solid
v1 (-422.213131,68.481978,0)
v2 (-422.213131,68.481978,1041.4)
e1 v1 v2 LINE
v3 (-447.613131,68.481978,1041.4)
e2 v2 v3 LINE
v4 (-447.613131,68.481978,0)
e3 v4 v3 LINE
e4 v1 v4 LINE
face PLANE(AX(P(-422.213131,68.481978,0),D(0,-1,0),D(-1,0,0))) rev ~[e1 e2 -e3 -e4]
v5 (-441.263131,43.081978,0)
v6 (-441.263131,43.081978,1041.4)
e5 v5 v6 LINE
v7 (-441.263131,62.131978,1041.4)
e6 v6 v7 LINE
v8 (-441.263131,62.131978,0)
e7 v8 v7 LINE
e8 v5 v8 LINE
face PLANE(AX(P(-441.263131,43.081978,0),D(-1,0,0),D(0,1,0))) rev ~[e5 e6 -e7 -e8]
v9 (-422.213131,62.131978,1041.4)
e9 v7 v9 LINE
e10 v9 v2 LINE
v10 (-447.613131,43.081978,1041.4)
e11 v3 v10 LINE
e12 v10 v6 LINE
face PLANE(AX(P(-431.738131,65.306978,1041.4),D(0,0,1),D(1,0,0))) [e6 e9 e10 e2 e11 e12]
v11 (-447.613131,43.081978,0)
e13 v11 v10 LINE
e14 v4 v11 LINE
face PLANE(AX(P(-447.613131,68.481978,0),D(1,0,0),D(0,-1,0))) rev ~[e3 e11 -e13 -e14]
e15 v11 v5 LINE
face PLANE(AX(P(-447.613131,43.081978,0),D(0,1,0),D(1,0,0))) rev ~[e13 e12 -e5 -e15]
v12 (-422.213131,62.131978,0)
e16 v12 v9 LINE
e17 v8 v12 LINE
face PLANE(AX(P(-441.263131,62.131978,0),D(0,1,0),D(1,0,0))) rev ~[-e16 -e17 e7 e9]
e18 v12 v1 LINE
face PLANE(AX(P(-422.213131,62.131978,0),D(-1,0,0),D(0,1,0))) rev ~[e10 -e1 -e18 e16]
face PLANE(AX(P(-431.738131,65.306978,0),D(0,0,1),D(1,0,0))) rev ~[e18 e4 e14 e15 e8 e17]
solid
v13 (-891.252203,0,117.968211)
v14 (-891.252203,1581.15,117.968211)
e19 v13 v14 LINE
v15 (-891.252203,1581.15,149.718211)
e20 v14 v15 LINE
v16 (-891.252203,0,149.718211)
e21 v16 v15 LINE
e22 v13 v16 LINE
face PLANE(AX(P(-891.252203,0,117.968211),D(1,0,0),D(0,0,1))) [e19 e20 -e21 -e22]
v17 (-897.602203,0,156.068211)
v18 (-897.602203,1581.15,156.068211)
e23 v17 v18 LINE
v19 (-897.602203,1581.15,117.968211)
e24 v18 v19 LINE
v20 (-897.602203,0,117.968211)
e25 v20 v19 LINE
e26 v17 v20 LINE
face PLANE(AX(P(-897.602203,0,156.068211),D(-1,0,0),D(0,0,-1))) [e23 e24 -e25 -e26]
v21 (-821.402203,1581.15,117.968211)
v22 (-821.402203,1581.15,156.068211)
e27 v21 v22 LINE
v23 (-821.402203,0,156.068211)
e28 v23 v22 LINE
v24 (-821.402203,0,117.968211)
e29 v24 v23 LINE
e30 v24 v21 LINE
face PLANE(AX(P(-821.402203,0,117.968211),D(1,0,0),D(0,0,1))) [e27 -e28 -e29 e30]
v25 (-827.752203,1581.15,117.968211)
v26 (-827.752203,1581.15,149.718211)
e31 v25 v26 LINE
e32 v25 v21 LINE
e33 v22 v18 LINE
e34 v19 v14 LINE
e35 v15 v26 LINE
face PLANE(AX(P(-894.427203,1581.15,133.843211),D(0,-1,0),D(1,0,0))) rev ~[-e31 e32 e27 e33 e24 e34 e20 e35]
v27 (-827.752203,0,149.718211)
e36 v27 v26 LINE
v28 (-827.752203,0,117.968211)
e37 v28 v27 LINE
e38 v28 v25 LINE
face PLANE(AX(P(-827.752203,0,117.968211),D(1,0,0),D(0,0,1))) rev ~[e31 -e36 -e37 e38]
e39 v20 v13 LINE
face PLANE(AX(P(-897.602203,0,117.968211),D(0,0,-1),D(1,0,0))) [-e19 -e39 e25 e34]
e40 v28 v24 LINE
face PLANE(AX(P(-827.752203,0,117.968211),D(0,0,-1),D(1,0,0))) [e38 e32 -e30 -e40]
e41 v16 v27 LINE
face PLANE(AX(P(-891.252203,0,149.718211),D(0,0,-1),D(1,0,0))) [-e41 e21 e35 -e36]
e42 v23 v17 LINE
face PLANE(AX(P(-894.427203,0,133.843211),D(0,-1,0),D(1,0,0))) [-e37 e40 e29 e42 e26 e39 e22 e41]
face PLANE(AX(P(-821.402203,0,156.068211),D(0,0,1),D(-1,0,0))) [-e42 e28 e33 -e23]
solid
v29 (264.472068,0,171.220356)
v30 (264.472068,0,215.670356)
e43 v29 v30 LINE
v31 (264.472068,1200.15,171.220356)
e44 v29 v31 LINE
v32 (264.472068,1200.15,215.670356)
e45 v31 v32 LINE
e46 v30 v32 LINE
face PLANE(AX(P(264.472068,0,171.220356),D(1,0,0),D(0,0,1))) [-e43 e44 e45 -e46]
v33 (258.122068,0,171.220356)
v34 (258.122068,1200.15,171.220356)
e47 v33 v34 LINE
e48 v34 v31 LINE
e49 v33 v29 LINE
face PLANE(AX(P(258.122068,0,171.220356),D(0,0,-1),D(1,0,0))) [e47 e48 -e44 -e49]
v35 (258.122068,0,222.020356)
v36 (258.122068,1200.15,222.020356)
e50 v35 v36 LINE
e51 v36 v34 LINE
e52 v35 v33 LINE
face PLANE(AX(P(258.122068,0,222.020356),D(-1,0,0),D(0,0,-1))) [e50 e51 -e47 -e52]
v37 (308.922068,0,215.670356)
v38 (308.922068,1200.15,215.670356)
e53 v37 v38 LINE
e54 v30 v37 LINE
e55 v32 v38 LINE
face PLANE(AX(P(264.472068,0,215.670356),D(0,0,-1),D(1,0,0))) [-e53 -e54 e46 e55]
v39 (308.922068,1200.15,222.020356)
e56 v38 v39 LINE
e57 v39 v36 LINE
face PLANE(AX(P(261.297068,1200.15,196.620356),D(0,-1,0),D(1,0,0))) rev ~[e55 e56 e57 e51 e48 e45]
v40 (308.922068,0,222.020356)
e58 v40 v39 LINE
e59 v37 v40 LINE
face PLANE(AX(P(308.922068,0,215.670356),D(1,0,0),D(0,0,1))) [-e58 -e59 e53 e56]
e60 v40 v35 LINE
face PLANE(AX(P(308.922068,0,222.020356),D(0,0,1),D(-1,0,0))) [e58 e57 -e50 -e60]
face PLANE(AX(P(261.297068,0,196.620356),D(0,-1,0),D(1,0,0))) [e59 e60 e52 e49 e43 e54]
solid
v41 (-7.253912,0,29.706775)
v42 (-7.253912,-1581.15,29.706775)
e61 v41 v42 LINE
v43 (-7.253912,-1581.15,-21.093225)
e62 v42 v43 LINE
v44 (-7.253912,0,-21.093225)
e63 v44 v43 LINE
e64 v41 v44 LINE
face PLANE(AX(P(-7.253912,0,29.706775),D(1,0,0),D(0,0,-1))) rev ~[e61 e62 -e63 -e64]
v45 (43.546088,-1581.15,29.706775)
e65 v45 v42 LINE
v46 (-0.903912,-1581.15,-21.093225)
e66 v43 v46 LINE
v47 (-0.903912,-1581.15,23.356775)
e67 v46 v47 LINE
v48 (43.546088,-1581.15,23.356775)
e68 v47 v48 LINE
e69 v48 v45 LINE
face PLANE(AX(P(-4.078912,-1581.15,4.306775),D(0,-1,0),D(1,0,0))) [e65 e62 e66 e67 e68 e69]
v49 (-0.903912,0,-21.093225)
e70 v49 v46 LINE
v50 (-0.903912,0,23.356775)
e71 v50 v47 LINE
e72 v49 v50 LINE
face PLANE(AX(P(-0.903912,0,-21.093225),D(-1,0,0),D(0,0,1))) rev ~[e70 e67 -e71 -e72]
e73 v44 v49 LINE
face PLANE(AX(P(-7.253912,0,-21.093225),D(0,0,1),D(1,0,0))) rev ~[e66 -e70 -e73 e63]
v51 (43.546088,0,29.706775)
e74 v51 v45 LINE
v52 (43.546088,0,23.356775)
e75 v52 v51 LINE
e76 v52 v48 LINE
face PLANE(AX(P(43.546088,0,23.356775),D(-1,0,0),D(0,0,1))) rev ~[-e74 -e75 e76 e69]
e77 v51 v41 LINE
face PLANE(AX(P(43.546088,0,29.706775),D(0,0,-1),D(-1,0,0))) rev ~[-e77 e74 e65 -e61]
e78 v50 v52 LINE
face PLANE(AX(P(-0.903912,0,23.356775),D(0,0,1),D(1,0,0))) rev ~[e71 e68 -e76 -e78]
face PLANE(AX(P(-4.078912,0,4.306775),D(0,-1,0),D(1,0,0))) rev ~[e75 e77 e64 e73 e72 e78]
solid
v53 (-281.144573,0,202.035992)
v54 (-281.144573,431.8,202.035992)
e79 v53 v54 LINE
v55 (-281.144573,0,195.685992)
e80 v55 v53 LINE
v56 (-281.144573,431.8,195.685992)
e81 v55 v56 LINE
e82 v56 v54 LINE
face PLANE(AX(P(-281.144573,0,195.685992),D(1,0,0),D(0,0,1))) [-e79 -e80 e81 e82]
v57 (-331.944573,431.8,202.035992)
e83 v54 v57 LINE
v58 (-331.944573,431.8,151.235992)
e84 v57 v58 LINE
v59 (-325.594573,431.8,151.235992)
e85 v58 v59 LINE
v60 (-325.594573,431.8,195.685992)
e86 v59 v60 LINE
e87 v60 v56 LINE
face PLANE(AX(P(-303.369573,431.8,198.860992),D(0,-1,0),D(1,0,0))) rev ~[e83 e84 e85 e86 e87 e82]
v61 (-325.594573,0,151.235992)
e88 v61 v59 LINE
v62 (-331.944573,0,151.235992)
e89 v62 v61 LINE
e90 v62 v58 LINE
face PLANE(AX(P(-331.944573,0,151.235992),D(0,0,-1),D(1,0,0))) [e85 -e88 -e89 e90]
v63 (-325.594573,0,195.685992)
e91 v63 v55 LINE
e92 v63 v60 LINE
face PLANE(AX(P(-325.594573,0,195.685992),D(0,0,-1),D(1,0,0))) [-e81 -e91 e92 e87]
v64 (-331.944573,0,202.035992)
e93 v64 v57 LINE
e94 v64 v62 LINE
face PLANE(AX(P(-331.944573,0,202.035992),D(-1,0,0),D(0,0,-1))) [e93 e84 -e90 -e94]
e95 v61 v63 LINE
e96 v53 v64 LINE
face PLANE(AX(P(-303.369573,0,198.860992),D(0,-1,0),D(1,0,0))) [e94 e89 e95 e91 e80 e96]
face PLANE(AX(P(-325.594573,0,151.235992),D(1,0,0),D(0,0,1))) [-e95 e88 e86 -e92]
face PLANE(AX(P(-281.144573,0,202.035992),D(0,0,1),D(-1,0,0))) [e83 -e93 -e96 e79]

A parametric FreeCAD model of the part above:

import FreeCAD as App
import Part
import Sketcher
Q = App.Units.Quantity

doc = App.newDocument("Part")
body = doc.addObject("PartDesign::Body", "Body")

# Sketch on XZ plane
sketch1 = body.newObject("Sketcher::SketchObject", "Sketch")
sketch1.AttachmentSupport = (doc.getObject("XZ_Plane"), [""])
sketch1.MapMode = "FlatFace"
sketch1.addGeometry(Part.LineSegment(App.Vector(-7.253912, 29.706775, 0), App.Vector(-7.253912, -21.093225, 0)), False)
sketch1.addGeometry(Part.LineSegment(App.Vector(-7.253912, -21.093225, 0), App.Vector(-0.903912, -21.093225, 0)), False)
sketch1.addGeometry(Part.LineSegment(App.Vector(-0.903912, -21.093225, 0), App.Vector(-0.903912, 23.356775, 0)), False)
sketch1.addGeometry(Part.LineSegment(App.Vector(-0.903912, 23.356775, 0), App.Vector(43.546088, 23.356775, 0)), False)
sketch1.addGeometry(Part.LineSegment(App.Vector(43.546088, 23.356775, 0), App.Vector(43.546088, 29.706775, 0)), False)
sketch1.addGeometry(Part.LineSegment(App.Vector(43.546088, 29.706775, 0), App.Vector(-7.253912, 29.706775, 0)), False)
sketch1.addConstraint(Sketcher.Constraint("Coincident", 0, 2, 1, 1))
sketch1.addConstraint(Sketcher.Constraint("Coincident", 1, 2, 2, 1))
sketch1.addConstraint(Sketcher.Constraint("Coincident", 2, 2, 3, 1))
sketch1.addConstraint(Sketcher.Constraint("Coincident", 3, 2, 4, 1))
sketch1.addConstraint(Sketcher.Constraint("Coincident", 4, 2, 5, 1))
sketch1.addConstraint(Sketcher.Constraint("Coincident", 5, 2, 0, 1))
sketch1.addConstraint(Sketcher.Constraint("Vertical", 0))
sketch1.addConstraint(Sketcher.Constraint("Horizontal", 1))
sketch1.addConstraint(Sketcher.Constraint("Vertical", 2))
sketch1.addConstraint(Sketcher.Constraint("Horizontal", 3))
sketch1.addConstraint(Sketcher.Constraint("Vertical", 4))
sketch1.addConstraint(Sketcher.Constraint("Horizontal", 5))
sketch1.addConstraint(Sketcher.Constraint("Equal", 5, 0))
sketch1.addConstraint(Sketcher.Constraint("Equal", 3, 2))
sketch1.addConstraint(Sketcher.Constraint("DistanceX", 5, 2, 5, 1, Q("2 in")))
sketch1.addConstraint(Sketcher.Constraint("DistanceX", 1, 1, 1, 2, Q("0.25 in")))
sketch1.addConstraint(Sketcher.Constraint("DistanceX", 0, 2, -1, 1, Q("7.253912 mm")))
sketch1.addConstraint(Sketcher.Constraint("DistanceY", 0, 2, -1, 1, Q("21.093225 mm")))
pad1 = body.newObject("PartDesign::Pad", "Pad")
pad1.Profile = sketch1
pad1.Length = Q("62.25 in")
body2 = doc.addObject("PartDesign::Body", "Body001")

# Sketch on XY plane
sketch2 = body2.newObject("Sketcher::SketchObject", "Sketch001")
sketch2.AttachmentSupport = (doc.getObject("XY_Plane001"), [""])
sketch2.MapMode = "FlatFace"
sketch2.addGeometry(Part.LineSegment(App.Vector(-441.263131, 62.131978, 0), App.Vector(-422.213131, 62.131978, 0)), False)
sketch2.addGeometry(Part.LineSegment(App.Vector(-422.213131, 62.131978, 0), App.Vector(-422.213131, 68.481978, 0)), False)
sketch2.addGeometry(Part.LineSegment(App.Vector(-422.213131, 68.481978, 0), App.Vector(-447.613131, 68.481978, 0)), False)
sketch2.addGeometry(Part.LineSegment(App.Vector(-447.613131, 68.481978, 0), App.Vector(-447.613131, 43.081978, 0)), False)
sketch2.addGeometry(Part.LineSegment(App.Vector(-447.613131, 43.081978, 0), App.Vector(-441.263131, 43.081978, 0)), False)
sketch2.addGeometry(Part.LineSegment(App.Vector(-441.263131, 43.081978, 0), App.Vector(-441.263131, 62.131978, 0)), False)
sketch2.addConstraint(Sketcher.Constraint("Coincident", 0, 2, 1, 1))
sketch2.addConstraint(Sketcher.Constraint("Coincident", 1, 2, 2, 1))
sketch2.addConstraint(Sketcher.Constraint("Coincident", 2, 2, 3, 1))
sketch2.addConstraint(Sketcher.Constraint("Coincident", 3, 2, 4, 1))
sketch2.addConstraint(Sketcher.Constraint("Coincident", 4, 2, 5, 1))
sketch2.addConstraint(Sketcher.Constraint("Coincident", 5, 2, 0, 1))
sketch2.addConstraint(Sketcher.Constraint("Horizontal", 0))
sketch2.addConstraint(Sketcher.Constraint("Vertical", 1))
sketch2.addConstraint(Sketcher.Constraint("Horizontal", 2))
sketch2.addConstraint(Sketcher.Constraint("Vertical", 3))
sketch2.addConstraint(Sketcher.Constraint("Horizontal", 4))
sketch2.addConstraint(Sketcher.Constraint("Vertical", 5))
sketch2.addConstraint(Sketcher.Constraint("Equal", 4, 1))
sketch2.addConstraint(Sketcher.Constraint("Equal", 2, 3))
sketch2.addConstraint(Sketcher.Constraint("DistanceX", 2, 2, 2, 1, Q("1 in")))
sketch2.addConstraint(Sketcher.Constraint("DistanceX", 0, 1, 0, 2, Q("0.75 in")))
sketch2.addConstraint(Sketcher.Constraint("DistanceX", 0, 2, -1, 1, Q("422.213131 mm")))
sketch2.addConstraint(Sketcher.Constraint("DistanceY", -1, 1, 1, 2, Q("68.481978 mm")))
pad2 = body2.newObject("PartDesign::Pad", "Pad001")
pad2.Profile = sketch2
pad2.Length = Q("41 in")
body3 = doc.addObject("PartDesign::Body", "Body002")

# Sketch on XZ plane
sketch3 = body3.newObject("Sketcher::SketchObject", "Sketch002")
sketch3.AttachmentSupport = (doc.getObject("XZ_Plane002"), [""])
sketch3.MapMode = "FlatFace"
sketch3.addGeometry(Part.LineSegment(App.Vector(-325.594573, 195.685992, 0), App.Vector(-281.144573, 195.685992, 0)), False)
sketch3.addGeometry(Part.LineSegment(App.Vector(-281.144573, 195.685992, 0), App.Vector(-281.144573, 202.035992, 0)), False)
sketch3.addGeometry(Part.LineSegment(App.Vector(-281.144573, 202.035992, 0), App.Vector(-331.944573, 202.035992, 0)), False)
sketch3.addGeometry(Part.LineSegment(App.Vector(-331.944573, 202.035992, 0), App.Vector(-331.944573, 151.235992, 0)), False)
sketch3.addGeometry(Part.LineSegment(App.Vector(-331.944573, 151.235992, 0), App.Vector(-325.594573, 151.235992, 0)), False)
sketch3.addGeometry(Part.LineSegment(App.Vector(-325.594573, 151.235992, 0), App.Vector(-325.594573, 195.685992, 0)), False)
sketch3.addConstraint(Sketcher.Constraint("Coincident", 0, 2, 1, 1))
sketch3.addConstraint(Sketcher.Constraint("Coincident", 1, 2, 2, 1))
sketch3.addConstraint(Sketcher.Constraint("Coincident", 2, 2, 3, 1))
sketch3.addConstraint(Sketcher.Constraint("Coincident", 3, 2, 4, 1))
sketch3.addConstraint(Sketcher.Constraint("Coincident", 4, 2, 5, 1))
sketch3.addConstraint(Sketcher.Constraint("Coincident", 5, 2, 0, 1))
sketch3.addConstraint(Sketcher.Constraint("Horizontal", 0))
sketch3.addConstraint(Sketcher.Constraint("Vertical", 1))
sketch3.addConstraint(Sketcher.Constraint("Horizontal", 2))
sketch3.addConstraint(Sketcher.Constraint("Vertical", 3))
sketch3.addConstraint(Sketcher.Constraint("Horizontal", 4))
sketch3.addConstraint(Sketcher.Constraint("Vertical", 5))
sketch3.addConstraint(Sketcher.Constraint("Equal", 4, 1))
sketch3.addConstraint(Sketcher.Constraint("Equal", 2, 3))
sketch3.addConstraint(Sketcher.Constraint("DistanceX", 2, 2, 2, 1, Q("2 in")))
sketch3.addConstraint(Sketcher.Constraint("DistanceX", 0, 1, 0, 2, Q("1.75 in")))
sketch3.addConstraint(Sketcher.Constraint("DistanceY", -1, 1, 0, 2, Q("195.685992 mm")))
sketch3.addConstraint(Sketcher.Constraint("DistanceX", 0, 2, -1, 1, Q("281.144573 mm")))
pad3 = body3.newObject("PartDesign::Pad", "Pad002")
pad3.Profile = sketch3
pad3.Length = Q("17 in")
pad3.Reversed = True
body4 = doc.addObject("PartDesign::Body", "Body003")

# Sketch on XZ plane
sketch4 = body4.newObject("Sketcher::SketchObject", "Sketch003")
sketch4.AttachmentSupport = (doc.getObject("XZ_Plane003"), [""])
sketch4.MapMode = "FlatFace"
sketch4.addGeometry(Part.LineSegment(App.Vector(258.122068, 222.020356, 0), App.Vector(258.122068, 171.220356, 0)), False)
sketch4.addGeometry(Part.LineSegment(App.Vector(258.122068, 171.220356, 0), App.Vector(264.472068, 171.220356, 0)), False)
sketch4.addGeometry(Part.LineSegment(App.Vector(264.472068, 171.220356, 0), App.Vector(264.472068, 215.670356, 0)), False)
sketch4.addGeometry(Part.LineSegment(App.Vector(264.472068, 215.670356, 0), App.Vector(308.922068, 215.670356, 0)), False)
sketch4.addGeometry(Part.LineSegment(App.Vector(308.922068, 215.670356, 0), App.Vector(308.922068, 222.020356, 0)), False)
sketch4.addGeometry(Part.LineSegment(App.Vector(308.922068, 222.020356, 0), App.Vector(258.122068, 222.020356, 0)), False)
sketch4.addConstraint(Sketcher.Constraint("Coincident", 0, 2, 1, 1))
sketch4.addConstraint(Sketcher.Constraint("Coincident", 1, 2, 2, 1))
sketch4.addConstraint(Sketcher.Constraint("Coincident", 2, 2, 3, 1))
sketch4.addConstraint(Sketcher.Constraint("Coincident", 3, 2, 4, 1))
sketch4.addConstraint(Sketcher.Constraint("Coincident", 4, 2, 5, 1))
sketch4.addConstraint(Sketcher.Constraint("Coincident", 5, 2, 0, 1))
sketch4.addConstraint(Sketcher.Constraint("Vertical", 0))
sketch4.addConstraint(Sketcher.Constraint("Horizontal", 1))
sketch4.addConstraint(Sketcher.Constraint("Vertical", 2))
sketch4.addConstraint(Sketcher.Constraint("Horizontal", 3))
sketch4.addConstraint(Sketcher.Constraint("Vertical", 4))
sketch4.addConstraint(Sketcher.Constraint("Horizontal", 5))
sketch4.addConstraint(Sketcher.Constraint("Equal", 5, 0))
sketch4.addConstraint(Sketcher.Constraint("Equal", 3, 2))
sketch4.addConstraint(Sketcher.Constraint("DistanceX", 5, 2, 5, 1, Q("2 in")))
sketch4.addConstraint(Sketcher.Constraint("DistanceX", 1, 1, 1, 2, Q("0.25 in")))
sketch4.addConstraint(Sketcher.Constraint("DistanceX", -1, 1, 0, 2, Q("258.122068 mm")))
sketch4.addConstraint(Sketcher.Constraint("DistanceY", -1, 1, 0, 2, Q("171.220356 mm")))
pad4 = body4.newObject("PartDesign::Pad", "Pad003")
pad4.Profile = sketch4
pad4.Length = Q("47.25 in")
pad4.Reversed = True
body5 = doc.addObject("PartDesign::Body", "Body004")

# Sketch on XZ plane
sketch5 = body5.newObject("Sketcher::SketchObject", "Sketch004")
sketch5.AttachmentSupport = (doc.getObject("XZ_Plane004"), [""])
sketch5.MapMode = "FlatFace"
sketch5.addGeometry(Part.LineSegment(App.Vector(-897.602203, 117.968211, 0), App.Vector(-891.252203, 117.968211, 0)), False)
sketch5.addGeometry(Part.LineSegment(App.Vector(-891.252203, 117.968211, 0), App.Vector(-891.252203, 149.718211, 0)), False)
sketch5.addGeometry(Part.LineSegment(App.Vector(-891.252203, 149.718211, 0), App.Vector(-827.752203, 149.718211, 0)), False)
sketch5.addGeometry(Part.LineSegment(App.Vector(-827.752203, 149.718211, 0), App.Vector(-827.752203, 117.968211, 0)), False)
sketch5.addGeometry(Part.LineSegment(App.Vector(-827.752203, 117.968211, 0), App.Vector(-821.402203, 117.968211, 0)), False)
sketch5.addGeometry(Part.LineSegment(App.Vector(-821.402203, 117.968211, 0), App.Vector(-821.402203, 156.068211, 0)), False)
sketch5.addGeometry(Part.LineSegment(App.Vector(-821.402203, 156.068211, 0), App.Vector(-897.602203, 156.068211, 0)), False)
sketch5.addGeometry(Part.LineSegment(App.Vector(-897.602203, 156.068211, 0), App.Vector(-897.602203, 117.968211, 0)), False)
sketch5.addConstraint(Sketcher.Constraint("Coincident", 0, 2, 1, 1))
sketch5.addConstraint(Sketcher.Constraint("Coincident", 1, 2, 2, 1))
sketch5.addConstraint(Sketcher.Constraint("Coincident", 2, 2, 3, 1))
sketch5.addConstraint(Sketcher.Constraint("Coincident", 3, 2, 4, 1))
sketch5.addConstraint(Sketcher.Constraint("Coincident", 4, 2, 5, 1))
sketch5.addConstraint(Sketcher.Constraint("Coincident", 5, 2, 6, 1))
sketch5.addConstraint(Sketcher.Constraint("Coincident", 6, 2, 7, 1))
sketch5.addConstraint(Sketcher.Constraint("Coincident", 7, 2, 0, 1))
sketch5.addConstraint(Sketcher.Constraint("Horizontal", 0))
sketch5.addConstraint(Sketcher.Constraint("Vertical", 1))
sketch5.addConstraint(Sketcher.Constraint("Horizontal", 2))
sketch5.addConstraint(Sketcher.Constraint("Vertical", 3))
sketch5.addConstraint(Sketcher.Constraint("Horizontal", 4))
sketch5.addConstraint(Sketcher.Constraint("Vertical", 5))
sketch5.addConstraint(Sketcher.Constraint("Horizontal", 6))
sketch5.addConstraint(Sketcher.Constraint("Vertical", 7))
sketch5.addConstraint(Sketcher.Constraint("Horizontal", 0, 2, 3, 2))
sketch5.addConstraint(Sketcher.Constraint("Equal", 0, 4))
sketch5.addConstraint(Sketcher.Constraint("DistanceX", 6, 2, 6, 1, Q("3 in")))
sketch5.addConstraint(Sketcher.Constraint("DistanceX", 2, 1, 2, 2, Q("2.5 in")))
sketch5.addConstraint(Sketcher.Constraint("DistanceY", 5, 1, 5, 2, Q("1.5 in")))
sketch5.addConstraint(Sketcher.Constraint("DistanceY", 1, 1, 1, 2, Q("1.25 in")))
sketch5.addConstraint(Sketcher.Constraint("DistanceY", -1, 1, 0, 2, Q("117.968211 mm")))
sketch5.addConstraint(Sketcher.Constraint("DistanceX", 0, 2, -1, 1, Q("891.252203 mm")))
pad5 = body5.newObject("PartDesign::Pad", "Pad004")
pad5.Profile = sketch5
pad5.Length = Q("62.25 in")
pad5.Reversed = True

doc.recompute()
